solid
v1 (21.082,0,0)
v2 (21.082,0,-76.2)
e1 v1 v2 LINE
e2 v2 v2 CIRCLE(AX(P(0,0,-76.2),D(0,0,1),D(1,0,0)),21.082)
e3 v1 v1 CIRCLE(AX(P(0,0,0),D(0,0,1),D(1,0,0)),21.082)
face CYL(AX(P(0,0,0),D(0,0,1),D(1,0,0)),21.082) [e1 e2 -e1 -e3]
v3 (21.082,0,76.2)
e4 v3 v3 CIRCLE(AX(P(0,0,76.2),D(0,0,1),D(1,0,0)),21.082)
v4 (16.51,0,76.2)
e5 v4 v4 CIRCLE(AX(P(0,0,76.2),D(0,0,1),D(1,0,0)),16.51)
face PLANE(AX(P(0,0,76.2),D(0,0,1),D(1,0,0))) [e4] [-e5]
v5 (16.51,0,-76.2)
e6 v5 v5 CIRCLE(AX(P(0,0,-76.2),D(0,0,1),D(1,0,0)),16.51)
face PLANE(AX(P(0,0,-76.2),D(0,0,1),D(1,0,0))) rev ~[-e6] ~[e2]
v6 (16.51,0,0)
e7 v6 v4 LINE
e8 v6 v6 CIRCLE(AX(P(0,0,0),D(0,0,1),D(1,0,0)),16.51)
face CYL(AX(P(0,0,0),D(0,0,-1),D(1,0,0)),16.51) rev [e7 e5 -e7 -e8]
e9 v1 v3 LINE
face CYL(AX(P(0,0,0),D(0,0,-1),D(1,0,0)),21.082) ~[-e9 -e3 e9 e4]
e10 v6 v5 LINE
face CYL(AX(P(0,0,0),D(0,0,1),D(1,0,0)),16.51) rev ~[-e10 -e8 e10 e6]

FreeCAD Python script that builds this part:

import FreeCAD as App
import Part
import Sketcher
Q = App.Units.Quantity

doc = App.newDocument("Part")
body = doc.addObject("PartDesign::Body", "Body")

sketch1 = body.newObject("Sketcher::SketchObject", "Sketch")
sketch1.AttachmentSupport = (doc.getObject("XY_Plane"), [""])
sketch1.MapMode = "FlatFace"
sketch1.addGeometry(Part.Circle(App.Vector(0, 0, 0), App.Vector(0, 0, 1), 21), False)
sketch1.addGeometry(Part.Circle(App.Vector(0, 0, 0), App.Vector(0, 0, 1), 17), False)
sketch1.addConstraint(Sketcher.Constraint("Coincident", 0, 3, -1, 1))
sketch1.addConstraint(Sketcher.Constraint("Coincident", 1, 3, -1, 1))
sketch1.addConstraint(Sketcher.Constraint("Diameter", 1, Q("1.3 in")))
sketch1.addConstraint(Sketcher.Constraint("Diameter", 0, Q("1.66 in")))
pad1 = body.newObject("PartDesign::Pad", "Pad")
pad1.Profile = sketch1
pad1.Length = Q("6 in")
pad1.Midplane = True

doc.recompute()
